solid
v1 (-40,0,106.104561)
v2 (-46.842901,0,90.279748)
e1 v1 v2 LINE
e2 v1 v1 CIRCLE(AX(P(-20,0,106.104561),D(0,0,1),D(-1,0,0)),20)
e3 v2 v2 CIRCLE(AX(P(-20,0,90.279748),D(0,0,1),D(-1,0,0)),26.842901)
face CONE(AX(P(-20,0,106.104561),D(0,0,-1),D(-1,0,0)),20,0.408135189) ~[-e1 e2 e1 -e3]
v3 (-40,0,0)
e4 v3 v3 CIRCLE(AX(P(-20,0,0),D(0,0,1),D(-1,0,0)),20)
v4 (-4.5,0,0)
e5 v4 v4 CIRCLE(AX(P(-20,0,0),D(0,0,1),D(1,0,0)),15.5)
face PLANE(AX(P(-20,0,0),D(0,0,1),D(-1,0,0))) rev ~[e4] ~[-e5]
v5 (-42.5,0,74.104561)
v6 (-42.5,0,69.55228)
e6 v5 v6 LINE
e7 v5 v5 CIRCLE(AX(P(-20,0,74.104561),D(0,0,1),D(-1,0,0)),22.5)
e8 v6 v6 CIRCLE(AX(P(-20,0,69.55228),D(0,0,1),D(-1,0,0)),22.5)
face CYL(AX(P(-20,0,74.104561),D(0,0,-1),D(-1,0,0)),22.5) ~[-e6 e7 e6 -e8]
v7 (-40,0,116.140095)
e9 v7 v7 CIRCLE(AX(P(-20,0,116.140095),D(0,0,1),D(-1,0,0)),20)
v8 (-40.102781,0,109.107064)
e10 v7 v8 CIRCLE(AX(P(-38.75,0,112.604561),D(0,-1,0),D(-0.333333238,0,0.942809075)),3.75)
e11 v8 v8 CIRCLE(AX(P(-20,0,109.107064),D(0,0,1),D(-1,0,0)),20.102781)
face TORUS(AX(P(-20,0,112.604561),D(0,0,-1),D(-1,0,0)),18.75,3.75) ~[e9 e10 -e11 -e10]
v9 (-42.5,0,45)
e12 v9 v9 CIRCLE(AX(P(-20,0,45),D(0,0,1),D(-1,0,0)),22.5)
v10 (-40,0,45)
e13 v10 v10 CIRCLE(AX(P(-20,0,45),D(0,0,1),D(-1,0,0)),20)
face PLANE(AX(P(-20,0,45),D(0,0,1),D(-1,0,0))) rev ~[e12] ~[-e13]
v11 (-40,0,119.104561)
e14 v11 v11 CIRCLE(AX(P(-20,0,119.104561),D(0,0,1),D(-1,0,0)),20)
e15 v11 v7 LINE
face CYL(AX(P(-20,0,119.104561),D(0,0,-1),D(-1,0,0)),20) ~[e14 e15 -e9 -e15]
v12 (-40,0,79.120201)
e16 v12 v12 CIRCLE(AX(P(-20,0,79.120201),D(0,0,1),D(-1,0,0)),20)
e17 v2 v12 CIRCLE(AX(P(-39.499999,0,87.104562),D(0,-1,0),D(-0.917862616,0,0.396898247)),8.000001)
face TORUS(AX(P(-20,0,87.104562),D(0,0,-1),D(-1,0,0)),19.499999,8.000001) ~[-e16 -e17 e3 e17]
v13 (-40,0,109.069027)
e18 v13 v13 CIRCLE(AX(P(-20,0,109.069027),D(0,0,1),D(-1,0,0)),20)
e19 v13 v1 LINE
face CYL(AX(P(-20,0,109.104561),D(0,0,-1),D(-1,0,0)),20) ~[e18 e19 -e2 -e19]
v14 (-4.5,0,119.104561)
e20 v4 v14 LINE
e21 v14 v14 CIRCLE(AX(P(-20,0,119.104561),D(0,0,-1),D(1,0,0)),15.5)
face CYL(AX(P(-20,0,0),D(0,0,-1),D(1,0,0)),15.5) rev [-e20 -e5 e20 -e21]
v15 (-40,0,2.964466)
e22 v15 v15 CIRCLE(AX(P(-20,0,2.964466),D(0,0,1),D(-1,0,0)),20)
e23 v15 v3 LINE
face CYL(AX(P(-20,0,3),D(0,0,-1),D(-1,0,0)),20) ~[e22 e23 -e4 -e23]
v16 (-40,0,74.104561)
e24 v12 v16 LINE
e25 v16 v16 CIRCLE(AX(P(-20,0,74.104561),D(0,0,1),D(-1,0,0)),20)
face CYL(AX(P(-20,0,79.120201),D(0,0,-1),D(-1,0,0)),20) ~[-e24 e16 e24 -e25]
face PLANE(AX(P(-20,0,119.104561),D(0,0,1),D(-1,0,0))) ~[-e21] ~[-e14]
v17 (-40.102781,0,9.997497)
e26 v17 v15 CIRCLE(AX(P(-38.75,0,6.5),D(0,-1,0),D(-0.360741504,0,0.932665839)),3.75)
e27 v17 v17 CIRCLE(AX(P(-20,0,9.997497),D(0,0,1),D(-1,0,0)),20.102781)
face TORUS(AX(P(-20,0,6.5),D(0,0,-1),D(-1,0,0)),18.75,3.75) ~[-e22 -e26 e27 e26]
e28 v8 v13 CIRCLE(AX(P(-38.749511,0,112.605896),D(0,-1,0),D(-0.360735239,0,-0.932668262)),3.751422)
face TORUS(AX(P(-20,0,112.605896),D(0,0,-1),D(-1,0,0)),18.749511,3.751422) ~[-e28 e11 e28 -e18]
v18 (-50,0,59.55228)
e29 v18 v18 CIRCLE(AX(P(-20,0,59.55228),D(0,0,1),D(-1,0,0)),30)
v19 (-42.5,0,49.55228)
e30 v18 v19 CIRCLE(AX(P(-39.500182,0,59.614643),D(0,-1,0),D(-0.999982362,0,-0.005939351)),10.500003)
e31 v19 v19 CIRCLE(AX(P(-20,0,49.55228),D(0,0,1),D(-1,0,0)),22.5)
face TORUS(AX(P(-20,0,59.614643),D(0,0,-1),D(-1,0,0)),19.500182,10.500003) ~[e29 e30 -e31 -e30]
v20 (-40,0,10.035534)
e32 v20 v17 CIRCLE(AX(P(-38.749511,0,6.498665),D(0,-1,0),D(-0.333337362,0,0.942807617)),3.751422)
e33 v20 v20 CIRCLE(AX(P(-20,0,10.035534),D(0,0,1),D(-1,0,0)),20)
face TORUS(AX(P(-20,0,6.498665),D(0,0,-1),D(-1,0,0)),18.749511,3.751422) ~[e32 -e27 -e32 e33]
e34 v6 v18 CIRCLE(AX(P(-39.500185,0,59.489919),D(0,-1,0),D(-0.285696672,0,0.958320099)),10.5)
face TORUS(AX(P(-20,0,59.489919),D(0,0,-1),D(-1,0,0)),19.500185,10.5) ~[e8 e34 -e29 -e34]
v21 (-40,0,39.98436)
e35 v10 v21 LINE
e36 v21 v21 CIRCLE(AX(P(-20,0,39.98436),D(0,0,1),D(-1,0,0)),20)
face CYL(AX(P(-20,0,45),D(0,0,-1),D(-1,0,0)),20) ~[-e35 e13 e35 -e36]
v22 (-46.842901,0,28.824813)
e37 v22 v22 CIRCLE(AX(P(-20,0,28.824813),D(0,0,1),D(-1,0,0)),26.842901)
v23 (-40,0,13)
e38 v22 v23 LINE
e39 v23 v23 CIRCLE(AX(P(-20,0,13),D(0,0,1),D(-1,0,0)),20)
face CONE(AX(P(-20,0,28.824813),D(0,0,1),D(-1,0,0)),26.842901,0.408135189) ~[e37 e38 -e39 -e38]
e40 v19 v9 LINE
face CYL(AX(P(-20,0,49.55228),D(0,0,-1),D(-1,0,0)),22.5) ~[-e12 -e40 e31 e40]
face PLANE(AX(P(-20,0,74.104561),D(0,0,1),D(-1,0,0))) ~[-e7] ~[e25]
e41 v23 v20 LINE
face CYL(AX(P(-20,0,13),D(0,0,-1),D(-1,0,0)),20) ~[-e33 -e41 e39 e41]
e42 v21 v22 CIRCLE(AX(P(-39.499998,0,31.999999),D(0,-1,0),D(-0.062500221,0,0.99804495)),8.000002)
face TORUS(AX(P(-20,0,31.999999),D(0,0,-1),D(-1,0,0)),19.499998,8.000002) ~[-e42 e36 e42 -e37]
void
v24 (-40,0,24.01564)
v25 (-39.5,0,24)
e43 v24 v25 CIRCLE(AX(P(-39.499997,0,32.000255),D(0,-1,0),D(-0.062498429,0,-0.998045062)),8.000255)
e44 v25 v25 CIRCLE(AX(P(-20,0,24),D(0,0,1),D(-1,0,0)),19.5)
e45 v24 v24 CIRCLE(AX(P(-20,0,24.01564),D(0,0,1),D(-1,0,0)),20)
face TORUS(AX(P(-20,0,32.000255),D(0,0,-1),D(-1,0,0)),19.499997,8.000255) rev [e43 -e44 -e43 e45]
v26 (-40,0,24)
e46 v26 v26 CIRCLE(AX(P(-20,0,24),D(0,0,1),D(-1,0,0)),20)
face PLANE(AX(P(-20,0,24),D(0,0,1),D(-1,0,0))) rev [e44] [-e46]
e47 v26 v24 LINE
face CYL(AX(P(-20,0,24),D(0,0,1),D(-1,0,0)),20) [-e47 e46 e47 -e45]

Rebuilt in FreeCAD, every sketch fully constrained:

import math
import FreeCAD as App
import Part
import Sketcher

V = App.Vector

doc = App.newDocument("Part")
body = doc.addObject("PartDesign::Body", "Body")

sketch1 = body.newObject("Sketcher::SketchObject", "Sketch")
sketch1.AttachmentSupport = (doc.getObject("XZ_Plane"), [""])
sketch1.MapMode = "FlatFace"
sketch1.addGeometry([
    Part.LineSegment(V(-40, 0, 0), V(-20, 0, 0)),
    Part.LineSegment(V(-20, 0, 0), V(-20, 119.105, 0)),
    Part.LineSegment(V(-20, 119.105, 0), V(-40, 119.105, 0)),
    Part.LineSegment(V(-40, 119.105, 0), V(-40, 116.14, 0)),
    Part.ArcOfCircle(Part.Circle(V(-38.75, 112.605, 0), V(0, 0, 1), 3.75), math.radians(109), math.radians(249)),
    Part.ArcOfCircle(Part.Circle(V(-38.75, 112.606, 0), V(0, 0, 1), 3.751), math.radians(-111.15), math.radians(-109.47)),
    Part.LineSegment(V(-40, 109.069, 0), V(-40, 106.105, 0)),
    Part.LineSegment(V(-40, 106.105, 0), V(-46.843, 90.28, 0)),
    Part.ArcOfCircle(Part.Circle(V(-39.5, 87.105, 0), V(0, 0, 1), 8), math.radians(157), math.radians(266)),
    Part.LineSegment(V(-40, 79.12, 0), V(-40, 74.105, 0)),
    Part.LineSegment(V(-40, 74.105, 0), V(-42.5, 74.105, 0)),
    Part.LineSegment(V(-42.5, 74.105, 0), V(-42.5, 69.552, 0)),
    Part.ArcOfCircle(Part.Circle(V(-39.5, 59.49, 0), V(0, 0, 1), 10.5), math.radians(107), math.radians(180)),
    Part.ArcOfCircle(Part.Circle(V(-39.5, 59.615, 0), V(0, 0, 1), 10.5), math.radians(-180), math.radians(-107)),
    Part.LineSegment(V(-42.5, 49.552, 0), V(-42.5, 45, 0)),
    Part.LineSegment(V(-42.5, 45, 0), V(-40, 45, 0)),
    Part.LineSegment(V(-40, 45, 0), V(-40, 39.984, 0)),
    Part.ArcOfCircle(Part.Circle(V(-39.5, 32, 0), V(0, 0, 1), 8), math.radians(94), math.radians(203)),
    Part.LineSegment(V(-46.843, 28.825, 0), V(-40, 13, 0)),
    Part.LineSegment(V(-40, 13, 0), V(-40, 10.036, 0)),
    Part.ArcOfCircle(Part.Circle(V(-38.75, 6.499, 0), V(0, 0, 1), 3.751), math.radians(109.47), math.radians(111.15)),
    Part.ArcOfCircle(Part.Circle(V(-38.75, 6.5, 0), V(0, 0, 1), 3.75), math.radians(111), math.radians(251)),
    Part.LineSegment(V(-40, 2.964, 0), V(-40, 0, 0)),
    Part.ArcOfCircle(Part.Circle(V(-39.5, 32, 0), V(0, 0, 1), 8), math.radians(-93.58), math.radians(-90)),
    Part.LineSegment(V(-39.5, 24, 0), V(-40, 24, 0)),
    Part.LineSegment(V(-40, 24, 0), V(-40, 24.016, 0)),
], False)
sketch1.addGeometry(Part.LineSegment(V(-20, 0, 0), V(-20, 119.105, 0)), True)
sketch1.addConstraint([
    Sketcher.Constraint("Coincident", 0, 2, 1, 1),
    Sketcher.Constraint("Coincident", 1, 2, 2, 1),
    Sketcher.Constraint("Coincident", 2, 2, 3, 1),
    Sketcher.Constraint("Coincident", 3, 2, 4, 1),
    Sketcher.Constraint("Coincident", 4, 2, 5, 1),
    Sketcher.Constraint("Coincident", 5, 2, 6, 1),
    Sketcher.Constraint("Coincident", 6, 2, 7, 1),
    Sketcher.Constraint("Tangent", 7, 2, 8, 1),
    Sketcher.Constraint("Coincident", 8, 2, 9, 1),
    Sketcher.Constraint("Coincident", 9, 2, 10, 1),
    Sketcher.Constraint("Coincident", 10, 2, 11, 1),
    Sketcher.Constraint("Coincident", 11, 2, 12, 1),
    Sketcher.Constraint("Coincident", 12, 2, 13, 1),
    Sketcher.Constraint("Coincident", 13, 2, 14, 1),
    Sketcher.Constraint("Coincident", 14, 2, 15, 1),
    Sketcher.Constraint("Coincident", 15, 2, 16, 1),
    Sketcher.Constraint("Coincident", 16, 2, 17, 1),
    Sketcher.Constraint("Tangent", 17, 2, 18, 1),
    Sketcher.Constraint("Coincident", 18, 2, 19, 1),
    Sketcher.Constraint("Coincident", 19, 2, 20, 1),
    Sketcher.Constraint("Coincident", 20, 2, 21, 1),
    Sketcher.Constraint("Coincident", 21, 2, 22, 1),
    Sketcher.Constraint("Coincident", 22, 2, 0, 1),
    Sketcher.Constraint("Tangent", 23, 2, 24, 1),
    Sketcher.Constraint("Coincident", 24, 2, 25, 1),
    Sketcher.Constraint("Coincident", 25, 2, 23, 1),
    Sketcher.Constraint("Horizontal", 0),
    Sketcher.Constraint("Vertical", 1),
    Sketcher.Constraint("Horizontal", 2),
    Sketcher.Constraint("Vertical", 3),
    Sketcher.Constraint("Vertical", 6),
    Sketcher.Constraint("Vertical", 9),
    Sketcher.Constraint("Horizontal", 10),
    Sketcher.Constraint("Vertical", 11),
    Sketcher.Constraint("Vertical", 14),
    Sketcher.Constraint("Horizontal", 15),
    Sketcher.Constraint("Vertical", 16),
    Sketcher.Constraint("Vertical", 19),
    Sketcher.Constraint("Vertical", 22),
    Sketcher.Constraint("Horizontal", 24),
    Sketcher.Constraint("Vertical", 25),
    Sketcher.Constraint("Vertical", 26),
    Sketcher.Constraint("Coincident", 26, 1, 0, 2),
    Sketcher.Constraint("Equal", 8, 17),
    Sketcher.Constraint("Equal", 5, 20),
    Sketcher.Constraint("Equal", 4, 21),
    Sketcher.Constraint("PointOnObject", 0, 2, -1),
    Sketcher.Constraint("Horizontal", 2, 2, 26, 2),
    Sketcher.Constraint("Vertical", 8, 3, 17, 3),
    Sketcher.Constraint("Vertical", 5, 3, 20, 3),
    Sketcher.Constraint("Vertical", 4, 3, 21, 3),
    Sketcher.Constraint("Vertical", 17, 3, 23, 3),
    Sketcher.Constraint("Vertical", 3, 2, 5, 2),
    Sketcher.Constraint("Vertical", 6, 2, 8, 2),
    Sketcher.Constraint("Vertical", 11, 2, 13, 2),
    Sketcher.Constraint("Vertical", 9, 2, 15, 2),
    Sketcher.Constraint("Vertical", 7, 2, 17, 2),
    Sketcher.Constraint("Vertical", 16, 2, 18, 2),
    Sketcher.Constraint("Vertical", 4, 2, 20, 2),
    Sketcher.Constraint("Vertical", 19, 2, 21, 2),
    Sketcher.Constraint("Vertical", 22, 2, 24, 2),
    Sketcher.Constraint("Equal", 3, 6),
    Sketcher.Constraint("Equal", 11, 14),
    Sketcher.Constraint("Equal", 9, 16),
    Sketcher.Constraint("Equal", 6, 19),
    Sketcher.Constraint("Equal", 19, 22),
    Sketcher.Constraint("Radius", 8, 8.000001),
    Sketcher.Constraint("Radius", 12, 10.5),
    Sketcher.Constraint("DistanceX", 0, 1, 0, 2, 20.0),
    Sketcher.Constraint("Radius", 4, 3.75),
    Sketcher.Constraint("DistanceX", 10, 2, 10, 1, 2.5),
    Sketcher.Constraint("DistanceX", 24, 2, 24, 1, 0.5),
    Sketcher.Constraint("DistanceY", -1, 1, 17, 3, 31.999999),
    Sketcher.Constraint("DistanceX", 0, 2, -1, 1, 20.0),
    Sketcher.Constraint("DistanceX", 12, 2, -1, 1, 50.0),
    Sketcher.Constraint("DistanceY", -1, 1, 14, 2, 45.0),
    Sketcher.Constraint("DistanceY", -1, 1, 18, 2, 13.0),
    Sketcher.Constraint("DistanceY", -1, 1, 23, 2, 24.0),
    Sketcher.Constraint("DistanceY", 12, 2, 11, 2, 10.0),
    Sketcher.Constraint("DistanceY", 13, 2, 12, 2, 10.0),
    Sketcher.Constraint("DistanceY", -1, 1, 21, 3, 6.5),
    Sketcher.Constraint("DistanceX", 4, 3, -1, 1, 38.75),
    Sketcher.Constraint("Radius", 5, 3.751422),
    Sketcher.Constraint("Radius", 13, 10.500003),
    Sketcher.Constraint("Radius", 23, 8.000255),
    Sketcher.Constraint("DistanceY", 1, 1, 1, 2, 119.104561),
    Sketcher.Constraint("DistanceX", 4, 2, -1, 1, 40.102781),
])
revolution = body.newObject("PartDesign::Revolution", "Revolution")
revolution.Profile = sketch1
revolution.ReferenceAxis = (sketch1, ["Axis0"])
revolution.Angle = 360

sketch2 = body.newObject("Sketcher::SketchObject", "Sketch001")
sketch2.AttachmentSupport = (doc.getObject("XY_Plane"), [""])
sketch2.MapMode = "FlatFace"
sketch2.addGeometry(Part.Circle(V(-20, 0, 0), V(0, 0, 1), 16), False)
sketch2.addConstraint([
    Sketcher.Constraint("PointOnObject", 0, 3, -1),
    Sketcher.Constraint("Diameter", 0, 31.0),
    Sketcher.Constraint("DistanceX", 0, 3, -1, 1, 20.0),
])
pocket1 = body.newObject("PartDesign::Pocket", "Pocket")
pocket1.Profile = sketch2
pocket1.Length = 120
pocket1.Reversed = True

doc.recompute()
